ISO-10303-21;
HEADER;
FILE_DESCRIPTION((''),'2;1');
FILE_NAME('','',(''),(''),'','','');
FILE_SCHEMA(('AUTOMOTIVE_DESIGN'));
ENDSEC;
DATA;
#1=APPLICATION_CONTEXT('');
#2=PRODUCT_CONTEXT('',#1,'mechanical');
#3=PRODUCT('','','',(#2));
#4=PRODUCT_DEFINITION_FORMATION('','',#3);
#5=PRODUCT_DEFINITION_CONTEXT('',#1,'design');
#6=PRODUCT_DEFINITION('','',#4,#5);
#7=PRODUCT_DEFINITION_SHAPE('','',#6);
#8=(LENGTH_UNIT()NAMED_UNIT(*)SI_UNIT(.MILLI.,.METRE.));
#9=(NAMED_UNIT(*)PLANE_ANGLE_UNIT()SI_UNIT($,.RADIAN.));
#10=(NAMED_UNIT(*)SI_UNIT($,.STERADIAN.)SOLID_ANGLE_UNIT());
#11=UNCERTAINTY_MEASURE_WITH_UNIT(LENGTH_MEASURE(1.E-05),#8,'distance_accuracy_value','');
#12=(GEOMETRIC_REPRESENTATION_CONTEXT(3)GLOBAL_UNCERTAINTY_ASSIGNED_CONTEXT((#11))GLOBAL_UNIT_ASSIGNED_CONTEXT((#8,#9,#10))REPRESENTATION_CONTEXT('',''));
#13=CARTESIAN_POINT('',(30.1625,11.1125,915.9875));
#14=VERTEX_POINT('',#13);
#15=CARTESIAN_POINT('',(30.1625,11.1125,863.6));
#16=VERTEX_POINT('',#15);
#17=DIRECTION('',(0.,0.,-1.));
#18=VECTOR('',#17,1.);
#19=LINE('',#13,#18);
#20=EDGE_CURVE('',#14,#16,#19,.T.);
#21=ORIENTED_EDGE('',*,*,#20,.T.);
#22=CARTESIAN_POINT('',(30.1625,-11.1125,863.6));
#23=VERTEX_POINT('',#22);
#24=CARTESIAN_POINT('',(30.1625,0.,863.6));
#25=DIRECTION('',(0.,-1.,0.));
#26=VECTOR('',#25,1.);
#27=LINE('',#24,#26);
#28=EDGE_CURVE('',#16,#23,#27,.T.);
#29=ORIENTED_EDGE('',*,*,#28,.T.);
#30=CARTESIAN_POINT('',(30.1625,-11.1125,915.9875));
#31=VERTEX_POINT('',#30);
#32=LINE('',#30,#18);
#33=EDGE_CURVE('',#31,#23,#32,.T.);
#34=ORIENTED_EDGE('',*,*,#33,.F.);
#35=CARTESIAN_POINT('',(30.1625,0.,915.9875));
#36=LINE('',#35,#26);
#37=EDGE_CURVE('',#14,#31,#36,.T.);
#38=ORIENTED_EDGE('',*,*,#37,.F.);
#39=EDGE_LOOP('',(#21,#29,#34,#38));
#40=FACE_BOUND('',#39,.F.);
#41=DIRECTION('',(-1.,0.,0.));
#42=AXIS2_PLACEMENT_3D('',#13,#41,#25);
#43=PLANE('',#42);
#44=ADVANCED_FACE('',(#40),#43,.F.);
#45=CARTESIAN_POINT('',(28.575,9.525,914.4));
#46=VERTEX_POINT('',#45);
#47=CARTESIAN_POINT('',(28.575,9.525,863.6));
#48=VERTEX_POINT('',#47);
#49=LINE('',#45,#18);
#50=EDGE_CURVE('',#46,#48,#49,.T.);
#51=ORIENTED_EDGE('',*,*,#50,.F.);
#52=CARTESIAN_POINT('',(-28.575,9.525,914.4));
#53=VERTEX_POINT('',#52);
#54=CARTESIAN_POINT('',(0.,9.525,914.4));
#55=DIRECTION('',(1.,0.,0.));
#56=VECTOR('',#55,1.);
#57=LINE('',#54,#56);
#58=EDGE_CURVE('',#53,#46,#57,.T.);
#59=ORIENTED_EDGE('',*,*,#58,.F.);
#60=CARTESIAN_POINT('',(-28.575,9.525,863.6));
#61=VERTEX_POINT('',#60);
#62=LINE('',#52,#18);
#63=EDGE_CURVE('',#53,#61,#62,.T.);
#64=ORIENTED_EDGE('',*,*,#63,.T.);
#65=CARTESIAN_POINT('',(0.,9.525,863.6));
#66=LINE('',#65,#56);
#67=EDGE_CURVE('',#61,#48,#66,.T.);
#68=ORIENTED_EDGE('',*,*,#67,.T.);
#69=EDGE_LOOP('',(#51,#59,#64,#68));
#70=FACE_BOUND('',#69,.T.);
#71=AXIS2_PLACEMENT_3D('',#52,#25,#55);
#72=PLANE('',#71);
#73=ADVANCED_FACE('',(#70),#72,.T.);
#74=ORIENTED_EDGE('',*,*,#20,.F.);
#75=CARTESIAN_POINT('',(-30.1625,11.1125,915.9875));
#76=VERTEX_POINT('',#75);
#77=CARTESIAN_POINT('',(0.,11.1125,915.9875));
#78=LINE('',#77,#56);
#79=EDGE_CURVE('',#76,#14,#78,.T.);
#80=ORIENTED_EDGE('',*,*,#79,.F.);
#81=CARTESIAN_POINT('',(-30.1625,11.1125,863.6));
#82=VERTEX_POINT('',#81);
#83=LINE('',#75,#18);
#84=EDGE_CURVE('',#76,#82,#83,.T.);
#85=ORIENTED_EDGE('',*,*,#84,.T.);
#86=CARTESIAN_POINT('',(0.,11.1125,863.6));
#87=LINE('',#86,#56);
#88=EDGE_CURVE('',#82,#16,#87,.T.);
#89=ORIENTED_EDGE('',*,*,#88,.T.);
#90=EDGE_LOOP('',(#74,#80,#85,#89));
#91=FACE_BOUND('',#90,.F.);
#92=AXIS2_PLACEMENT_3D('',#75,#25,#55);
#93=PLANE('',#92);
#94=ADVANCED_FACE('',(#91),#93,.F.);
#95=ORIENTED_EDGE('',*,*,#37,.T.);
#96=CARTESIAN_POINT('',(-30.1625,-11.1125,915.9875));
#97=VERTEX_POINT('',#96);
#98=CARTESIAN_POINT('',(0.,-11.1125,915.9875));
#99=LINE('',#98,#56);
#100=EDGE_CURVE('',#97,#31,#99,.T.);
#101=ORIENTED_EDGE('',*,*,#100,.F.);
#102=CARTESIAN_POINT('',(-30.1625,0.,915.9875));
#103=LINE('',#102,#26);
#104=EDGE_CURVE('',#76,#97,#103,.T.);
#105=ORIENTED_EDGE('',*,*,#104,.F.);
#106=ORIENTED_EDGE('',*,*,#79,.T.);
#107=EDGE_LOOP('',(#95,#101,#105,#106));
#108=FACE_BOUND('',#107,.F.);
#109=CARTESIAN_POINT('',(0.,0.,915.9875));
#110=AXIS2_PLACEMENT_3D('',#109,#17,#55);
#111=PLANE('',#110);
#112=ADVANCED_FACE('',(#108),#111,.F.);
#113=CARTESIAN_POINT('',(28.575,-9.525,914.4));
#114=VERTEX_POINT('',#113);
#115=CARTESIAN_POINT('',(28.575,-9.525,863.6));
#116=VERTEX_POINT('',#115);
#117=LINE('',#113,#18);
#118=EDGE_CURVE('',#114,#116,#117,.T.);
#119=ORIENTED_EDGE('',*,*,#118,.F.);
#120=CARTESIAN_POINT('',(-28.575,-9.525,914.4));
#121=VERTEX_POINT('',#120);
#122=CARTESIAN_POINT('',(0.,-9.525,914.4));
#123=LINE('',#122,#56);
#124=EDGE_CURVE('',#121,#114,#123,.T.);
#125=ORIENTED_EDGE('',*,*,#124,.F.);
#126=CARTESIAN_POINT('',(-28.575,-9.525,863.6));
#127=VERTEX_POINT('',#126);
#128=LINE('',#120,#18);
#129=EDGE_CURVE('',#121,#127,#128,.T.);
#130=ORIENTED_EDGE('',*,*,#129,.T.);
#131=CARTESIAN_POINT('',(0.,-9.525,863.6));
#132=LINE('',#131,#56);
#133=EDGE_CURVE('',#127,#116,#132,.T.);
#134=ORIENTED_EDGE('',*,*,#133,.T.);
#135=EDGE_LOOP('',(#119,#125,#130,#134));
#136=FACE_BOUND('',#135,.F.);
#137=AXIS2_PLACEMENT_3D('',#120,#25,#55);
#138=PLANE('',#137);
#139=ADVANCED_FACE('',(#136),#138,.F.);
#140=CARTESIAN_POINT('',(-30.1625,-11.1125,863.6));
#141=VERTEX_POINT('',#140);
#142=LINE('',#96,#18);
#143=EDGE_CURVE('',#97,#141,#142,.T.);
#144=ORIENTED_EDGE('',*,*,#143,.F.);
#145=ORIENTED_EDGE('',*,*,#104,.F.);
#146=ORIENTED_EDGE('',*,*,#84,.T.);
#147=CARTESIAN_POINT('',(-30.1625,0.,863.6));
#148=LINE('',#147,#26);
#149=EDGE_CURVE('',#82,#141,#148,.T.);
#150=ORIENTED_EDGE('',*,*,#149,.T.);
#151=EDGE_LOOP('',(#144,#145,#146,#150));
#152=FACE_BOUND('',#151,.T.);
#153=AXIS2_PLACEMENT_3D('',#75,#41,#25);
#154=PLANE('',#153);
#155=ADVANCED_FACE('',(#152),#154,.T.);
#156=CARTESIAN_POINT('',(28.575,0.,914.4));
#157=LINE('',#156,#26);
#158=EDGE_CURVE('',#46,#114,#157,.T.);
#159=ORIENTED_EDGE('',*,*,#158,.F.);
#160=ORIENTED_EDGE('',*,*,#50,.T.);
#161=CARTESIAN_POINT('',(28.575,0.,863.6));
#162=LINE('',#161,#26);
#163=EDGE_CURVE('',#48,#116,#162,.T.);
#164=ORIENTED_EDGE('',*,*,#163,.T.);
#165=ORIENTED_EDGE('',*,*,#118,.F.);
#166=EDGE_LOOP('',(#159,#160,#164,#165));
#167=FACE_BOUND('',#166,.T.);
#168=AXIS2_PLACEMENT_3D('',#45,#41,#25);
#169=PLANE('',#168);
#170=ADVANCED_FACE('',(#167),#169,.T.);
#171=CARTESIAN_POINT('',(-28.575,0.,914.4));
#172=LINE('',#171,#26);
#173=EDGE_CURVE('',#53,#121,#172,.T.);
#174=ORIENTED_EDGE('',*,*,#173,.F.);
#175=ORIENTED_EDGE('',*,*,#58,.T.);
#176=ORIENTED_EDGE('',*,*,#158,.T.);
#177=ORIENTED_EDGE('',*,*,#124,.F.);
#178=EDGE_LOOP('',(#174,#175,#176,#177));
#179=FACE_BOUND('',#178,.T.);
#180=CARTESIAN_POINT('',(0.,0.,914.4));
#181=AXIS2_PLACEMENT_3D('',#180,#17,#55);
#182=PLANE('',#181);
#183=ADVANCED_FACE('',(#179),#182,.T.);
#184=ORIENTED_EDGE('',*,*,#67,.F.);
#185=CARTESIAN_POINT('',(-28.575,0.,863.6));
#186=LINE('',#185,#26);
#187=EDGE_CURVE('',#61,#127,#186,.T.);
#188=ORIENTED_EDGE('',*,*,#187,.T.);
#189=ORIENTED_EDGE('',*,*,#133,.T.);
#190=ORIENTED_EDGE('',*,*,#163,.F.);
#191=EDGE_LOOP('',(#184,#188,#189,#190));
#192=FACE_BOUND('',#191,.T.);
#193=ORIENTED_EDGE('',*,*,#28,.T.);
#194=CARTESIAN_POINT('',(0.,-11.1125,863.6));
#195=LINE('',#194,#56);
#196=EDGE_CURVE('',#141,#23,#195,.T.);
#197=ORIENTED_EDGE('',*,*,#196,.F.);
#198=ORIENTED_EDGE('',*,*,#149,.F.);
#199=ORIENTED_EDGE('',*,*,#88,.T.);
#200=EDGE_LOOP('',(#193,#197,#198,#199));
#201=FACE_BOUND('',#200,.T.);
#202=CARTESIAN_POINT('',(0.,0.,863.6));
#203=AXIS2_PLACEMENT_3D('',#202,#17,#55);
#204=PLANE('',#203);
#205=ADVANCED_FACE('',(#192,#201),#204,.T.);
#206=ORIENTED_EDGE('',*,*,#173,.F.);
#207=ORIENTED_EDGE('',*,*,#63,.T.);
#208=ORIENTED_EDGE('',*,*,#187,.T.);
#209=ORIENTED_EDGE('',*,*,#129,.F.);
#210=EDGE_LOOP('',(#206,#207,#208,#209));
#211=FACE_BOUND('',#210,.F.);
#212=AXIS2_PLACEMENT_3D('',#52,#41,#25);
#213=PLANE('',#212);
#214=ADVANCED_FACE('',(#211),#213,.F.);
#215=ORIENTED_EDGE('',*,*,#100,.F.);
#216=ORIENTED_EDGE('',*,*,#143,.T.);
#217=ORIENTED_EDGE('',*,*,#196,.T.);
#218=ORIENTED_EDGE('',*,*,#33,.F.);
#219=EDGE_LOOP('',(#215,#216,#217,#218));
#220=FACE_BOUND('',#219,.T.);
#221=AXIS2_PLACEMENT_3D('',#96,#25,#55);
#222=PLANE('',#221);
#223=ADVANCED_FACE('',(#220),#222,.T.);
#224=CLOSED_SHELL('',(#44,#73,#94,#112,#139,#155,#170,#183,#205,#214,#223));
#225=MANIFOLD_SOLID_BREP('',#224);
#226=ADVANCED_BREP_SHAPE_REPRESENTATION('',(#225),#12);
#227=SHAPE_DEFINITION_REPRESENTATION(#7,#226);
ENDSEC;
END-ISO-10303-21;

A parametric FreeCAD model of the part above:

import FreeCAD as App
import Part
import Sketcher
Q = App.Units.Quantity


def add_polygon(sketch, points):
    """Adds a closed chain of lines whose ends are joined by coincident constraints."""
    first, n = sketch.GeometryCount, len(points)
    for a, b in zip(points, points[1:] + points[:1]):
        sketch.addGeometry(Part.LineSegment(App.Vector(*a, 0), App.Vector(*b, 0)), False)
    for i in range(n):
        sketch.addConstraint(Sketcher.Constraint("Coincident", first + i, 2, first + (i + 1) % n, 1))

doc = App.newDocument("Part")
body = doc.addObject("PartDesign::Body", "Body")

sketch1 = body.newObject("Sketcher::SketchObject", "Sketch")
sketch1.AttachmentSupport = (doc.getObject("XY_Plane"), [""])
sketch1.MapMode = "FlatFace"
add_polygon(sketch1, [(-29, 10), (-29, -10), (29, -10), (29, 10)])
sketch1.addConstraint([
    Sketcher.Constraint("Vertical", 0),
    Sketcher.Constraint("Horizontal", 1),
    Sketcher.Constraint("Vertical", 2),
    Sketcher.Constraint("Horizontal", 3),
    Sketcher.Constraint("Symmetric", 0, 2, 2, 2, -1, 1),
    Sketcher.Constraint("DistanceX", 1, 1, 1, 2, Q("2.25 in")),
    Sketcher.Constraint("DistanceY", 0, 2, 0, 1, Q("0.75 in")),
])
pad1 = body.newObject("PartDesign::Pad", "Pad")
pad1.Profile = sketch1
pad1.Length = Q("2 in")
body2 = doc.addObject("PartDesign::Body", "Body001")

sketch2 = body2.newObject("Sketcher::SketchObject", "Sketch001")
sketch2.AttachmentSupport = (doc.getObject("XY_Plane001"), [""])
sketch2.MapMode = "FlatFace"
sketch2.AttachmentOffset = App.Placement(App.Vector(0, 0, -0.0625 * 25.4), App.Rotation())
add_polygon(sketch2, [(-30, 11), (-30, -11), (30, -11), (30, 11)])
sketch2.addConstraint([
    Sketcher.Constraint("Vertical", 0),
    Sketcher.Constraint("Horizontal", 1),
    Sketcher.Constraint("Vertical", 2),
    Sketcher.Constraint("Horizontal", 3),
    Sketcher.Constraint("Symmetric", 0, 2, 2, 2, -1, 1),
    Sketcher.Constraint("DistanceX", 1, 1, 1, 2, Q("2.375 in")),
    Sketcher.Constraint("DistanceY", 0, 2, 0, 1, Q("0.875 in")),
])
pad2 = body2.newObject("PartDesign::Pad", "Pad001")
pad2.Profile = sketch2
pad2.Length = Q("2.0625 in")
doc.recompute()

boolean = body2.newObject("PartDesign::Boolean", "Boolean")
boolean.Type = "Cut"
boolean.addObjects([body])
body3 = doc.addObject("PartDesign::Body", "Body002")
doc.recompute()

body2.Placement = App.Placement(App.Vector(0, 0, 914.4), App.Rotation(App.Vector(1, 0, 0), 180))
boolean2 = body3.newObject("PartDesign::Boolean", "Boolean001")
boolean2.Type = "Fuse"
boolean2.addObjects([body2])

doc.recompute()
